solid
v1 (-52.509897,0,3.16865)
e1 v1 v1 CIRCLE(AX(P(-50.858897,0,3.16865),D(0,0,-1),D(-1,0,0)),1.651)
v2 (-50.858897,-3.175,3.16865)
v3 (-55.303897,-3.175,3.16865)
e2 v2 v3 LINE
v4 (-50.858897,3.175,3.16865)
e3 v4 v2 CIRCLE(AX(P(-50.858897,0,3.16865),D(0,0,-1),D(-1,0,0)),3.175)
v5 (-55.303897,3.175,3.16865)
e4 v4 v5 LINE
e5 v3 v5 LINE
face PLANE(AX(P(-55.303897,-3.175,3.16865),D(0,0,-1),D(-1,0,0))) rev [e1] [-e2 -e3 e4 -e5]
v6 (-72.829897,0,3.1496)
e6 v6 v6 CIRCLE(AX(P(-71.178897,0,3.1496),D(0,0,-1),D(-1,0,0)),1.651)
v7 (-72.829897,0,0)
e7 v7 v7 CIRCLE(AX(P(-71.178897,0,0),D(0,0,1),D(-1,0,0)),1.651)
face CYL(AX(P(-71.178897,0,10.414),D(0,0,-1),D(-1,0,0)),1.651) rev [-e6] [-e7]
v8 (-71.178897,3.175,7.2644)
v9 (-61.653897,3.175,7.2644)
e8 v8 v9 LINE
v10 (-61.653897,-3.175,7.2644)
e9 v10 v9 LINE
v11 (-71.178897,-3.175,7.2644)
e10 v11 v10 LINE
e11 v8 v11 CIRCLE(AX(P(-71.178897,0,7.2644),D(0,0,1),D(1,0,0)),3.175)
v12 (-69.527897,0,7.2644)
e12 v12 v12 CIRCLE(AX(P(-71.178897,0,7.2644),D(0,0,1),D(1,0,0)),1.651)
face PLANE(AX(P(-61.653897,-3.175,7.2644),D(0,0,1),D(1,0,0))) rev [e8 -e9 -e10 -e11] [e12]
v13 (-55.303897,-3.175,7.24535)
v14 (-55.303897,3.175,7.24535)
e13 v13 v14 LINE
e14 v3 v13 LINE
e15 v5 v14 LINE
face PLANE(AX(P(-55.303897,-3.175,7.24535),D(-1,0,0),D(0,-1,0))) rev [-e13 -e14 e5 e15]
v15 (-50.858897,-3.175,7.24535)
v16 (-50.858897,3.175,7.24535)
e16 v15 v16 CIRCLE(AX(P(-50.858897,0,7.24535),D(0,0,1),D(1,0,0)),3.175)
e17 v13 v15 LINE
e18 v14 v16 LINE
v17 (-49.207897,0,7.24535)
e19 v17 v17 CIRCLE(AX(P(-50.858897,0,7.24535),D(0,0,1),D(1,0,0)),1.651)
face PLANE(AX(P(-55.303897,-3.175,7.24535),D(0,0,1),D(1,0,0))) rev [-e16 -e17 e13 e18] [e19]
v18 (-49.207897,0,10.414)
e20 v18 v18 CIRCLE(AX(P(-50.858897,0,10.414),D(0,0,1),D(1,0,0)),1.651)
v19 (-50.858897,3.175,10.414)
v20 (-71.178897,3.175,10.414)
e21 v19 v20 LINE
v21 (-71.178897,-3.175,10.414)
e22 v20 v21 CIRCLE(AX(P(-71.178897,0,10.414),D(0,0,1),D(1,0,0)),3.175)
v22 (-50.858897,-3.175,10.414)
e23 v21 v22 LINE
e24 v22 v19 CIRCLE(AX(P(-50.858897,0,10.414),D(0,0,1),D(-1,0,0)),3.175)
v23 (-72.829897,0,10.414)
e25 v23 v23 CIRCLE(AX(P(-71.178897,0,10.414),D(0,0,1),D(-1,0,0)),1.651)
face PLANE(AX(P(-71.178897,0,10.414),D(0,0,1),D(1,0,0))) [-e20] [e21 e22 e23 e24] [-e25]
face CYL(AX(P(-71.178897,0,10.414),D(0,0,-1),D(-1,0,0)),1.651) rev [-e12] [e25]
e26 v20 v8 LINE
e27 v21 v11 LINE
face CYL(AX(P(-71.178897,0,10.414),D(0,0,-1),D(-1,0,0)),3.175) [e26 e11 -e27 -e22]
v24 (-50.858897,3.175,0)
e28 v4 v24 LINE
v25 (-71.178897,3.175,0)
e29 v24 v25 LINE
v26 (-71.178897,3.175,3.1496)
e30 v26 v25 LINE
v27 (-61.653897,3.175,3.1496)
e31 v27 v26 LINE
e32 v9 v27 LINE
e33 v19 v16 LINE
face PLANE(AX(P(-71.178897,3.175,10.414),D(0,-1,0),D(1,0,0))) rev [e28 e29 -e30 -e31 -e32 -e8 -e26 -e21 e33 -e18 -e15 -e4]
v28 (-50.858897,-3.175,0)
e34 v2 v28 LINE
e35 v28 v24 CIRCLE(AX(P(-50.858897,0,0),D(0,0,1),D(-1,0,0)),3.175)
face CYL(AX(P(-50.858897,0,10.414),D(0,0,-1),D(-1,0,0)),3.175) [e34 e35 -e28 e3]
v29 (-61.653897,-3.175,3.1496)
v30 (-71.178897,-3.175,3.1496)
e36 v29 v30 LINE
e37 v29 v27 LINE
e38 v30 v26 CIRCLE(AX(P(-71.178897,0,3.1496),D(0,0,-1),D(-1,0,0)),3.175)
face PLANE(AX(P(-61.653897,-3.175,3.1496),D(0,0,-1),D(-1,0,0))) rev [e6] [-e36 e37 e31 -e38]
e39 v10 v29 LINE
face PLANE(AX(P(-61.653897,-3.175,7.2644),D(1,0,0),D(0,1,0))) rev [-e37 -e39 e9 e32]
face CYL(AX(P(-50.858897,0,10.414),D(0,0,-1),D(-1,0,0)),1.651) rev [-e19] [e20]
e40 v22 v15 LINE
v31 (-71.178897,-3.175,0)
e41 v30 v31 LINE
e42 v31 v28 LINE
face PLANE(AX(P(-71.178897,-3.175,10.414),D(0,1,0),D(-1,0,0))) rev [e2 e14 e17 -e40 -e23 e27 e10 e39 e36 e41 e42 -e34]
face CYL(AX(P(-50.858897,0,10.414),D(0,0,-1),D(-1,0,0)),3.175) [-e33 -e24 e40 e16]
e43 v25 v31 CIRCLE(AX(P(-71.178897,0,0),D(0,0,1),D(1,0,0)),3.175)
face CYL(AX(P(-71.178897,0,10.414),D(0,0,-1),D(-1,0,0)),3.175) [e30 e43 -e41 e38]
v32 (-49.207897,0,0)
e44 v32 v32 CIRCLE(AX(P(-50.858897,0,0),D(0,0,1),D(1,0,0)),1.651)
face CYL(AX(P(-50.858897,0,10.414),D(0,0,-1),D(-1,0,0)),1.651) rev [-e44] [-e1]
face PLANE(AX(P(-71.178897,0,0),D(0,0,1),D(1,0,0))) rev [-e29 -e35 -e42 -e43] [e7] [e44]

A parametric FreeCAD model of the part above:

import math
import FreeCAD as App
import Part
import Sketcher
from FreeCAD import Vector
Q = App.Units.Quantity

doc = App.newDocument("Part")
body = doc.addObject("PartDesign::Body", "Body")

# Sketch on XY plane
sketch1 = body.newObject("Sketcher::SketchObject", "Sketch")
sketch1.AttachmentSupport = (doc.getObject("XY_Plane"), [""])
sketch1.MapMode = "FlatFace"
sketch1.addGeometry([
    Part.LineSegment(Vector(-50.9, 3.2, 0), Vector(-71.2, 3.2, 0)),  # 0
    Part.ArcOfCircle(Part.Circle(Vector(-71.2, 0, 0), Vector(0, 0, 1), 3.2), math.radians(90), math.radians(270)),  # 1
    Part.LineSegment(Vector(-71.2, -3.2, 0), Vector(-50.9, -3.2, 0)),  # 2
    Part.ArcOfCircle(Part.Circle(Vector(-50.9, 0, 0), Vector(0, 0, 1), 3.2), math.radians(-90), math.radians(90)),  # 3
    Part.Circle(Vector(-50.9, 0, 0), Vector(0, 0, 1), 1.7),  # 4
    Part.Circle(Vector(-71.2, 0, 0), Vector(0, 0, 1), 1.7),  # 5
], False)
sketch1.addConstraint([
    Sketcher.Constraint("Tangent", 0, 2, 1, 1),
    Sketcher.Constraint("Tangent", 1, 2, 2, 1),
    Sketcher.Constraint("Tangent", 2, 2, 3, 1),
    Sketcher.Constraint("Tangent", 3, 2, 0, 1),
    Sketcher.Constraint("Horizontal", 0),
    Sketcher.Constraint("Horizontal", 2),
    Sketcher.Constraint("Coincident", 4, 3, 3, 3),
    Sketcher.Constraint("Coincident", 5, 3, 1, 3),
    Sketcher.Constraint("Equal", 4, 5),
    Sketcher.Constraint("PointOnObject", 1, 3, -1),
    Sketcher.Constraint("Diameter", 4, Q("0.13 in")),
    Sketcher.Constraint("DistanceX", 0, 2, 0, 1, Q("0.8 in")),
    Sketcher.Constraint("Radius", 1, Q("0.125 in")),
    Sketcher.Constraint("DistanceX", 1, 3, -1, 1, 71.178897),
])
pad1 = body.newObject("PartDesign::Pad", "Pad")
pad1.Profile = sketch1
pad1.Length = Q("0.41 in")

# Sketch on XZ plane
sketch2 = body.newObject("Sketcher::SketchObject", "Sketch001")
sketch2.AttachmentSupport = (doc.getObject("XZ_Plane"), [""])
sketch2.MapMode = "FlatFace"
sketch2.AttachmentOffset = App.Placement(Vector(0, 0, -0.125 * 25.4), App.Rotation())
sketch2.addGeometry([
    Part.LineSegment(Vector(-74.4, 3.1, 0), Vector(-74.4, 7.3, 0)),  # 0
    Part.LineSegment(Vector(-74.4, 7.3, 0), Vector(-61.7, 7.3, 0)),  # 1
    Part.LineSegment(Vector(-61.7, 7.3, 0), Vector(-61.7, 3.1, 0)),  # 2
    Part.LineSegment(Vector(-61.7, 3.1, 0), Vector(-74.4, 3.1, 0)),  # 3
    Part.LineSegment(Vector(-55.3, 3.2, 0), Vector(-55.3, 7.2, 0)),  # 4
    Part.LineSegment(Vector(-55.3, 7.2, 0), Vector(-42.6, 7.2, 0)),  # 5
    Part.LineSegment(Vector(-42.6, 7.2, 0), Vector(-42.6, 3.2, 0)),  # 6
    Part.LineSegment(Vector(-42.6, 3.2, 0), Vector(-55.3, 3.2, 0)),  # 7
], False)
sketch2.addConstraint([
    Sketcher.Constraint("Coincident", 0, 2, 1, 1),
    Sketcher.Constraint("Coincident", 1, 2, 2, 1),
    Sketcher.Constraint("Coincident", 2, 2, 3, 1),
    Sketcher.Constraint("Coincident", 3, 2, 0, 1),
    Sketcher.Constraint("Coincident", 4, 2, 5, 1),
    Sketcher.Constraint("Coincident", 5, 2, 6, 1),
    Sketcher.Constraint("Coincident", 6, 2, 7, 1),
    Sketcher.Constraint("Coincident", 7, 2, 4, 1),
    Sketcher.Constraint("Vertical", 0),
    Sketcher.Constraint("Horizontal", 1),
    Sketcher.Constraint("Vertical", 2),
    Sketcher.Constraint("Horizontal", 3),
    Sketcher.Constraint("Vertical", 4),
    Sketcher.Constraint("Horizontal", 5),
    Sketcher.Constraint("Vertical", 6),
    Sketcher.Constraint("Horizontal", 7),
    Sketcher.Constraint("Equal", 3, 5),
    Sketcher.Constraint("DistanceX", 1, 1, 1, 2, Q("0.5 in")),
    Sketcher.Constraint("DistanceY", 0, 1, 0, 2, Q("0.162 in")),
    Sketcher.Constraint("DistanceX", 1, 2, 4, 2, Q("0.25 in")),
    Sketcher.Constraint("DistanceY", 4, 1, 4, 2, Q("0.1605 in")),
    Sketcher.Constraint("DistanceY", -1, 1, 0, 2, Q("0.286 in")),
    Sketcher.Constraint("DistanceY", -1, 1, 4, 2, 7.24535),
    Sketcher.Constraint("DistanceX", 0, 2, -1, 1, 74.353897),
])
pocket1 = body.newObject("PartDesign::Pocket", "Pocket")
pocket1.Profile = sketch2
pocket1.Type = "ThroughAll"
pocket1.Reversed = True

doc.recompute()
